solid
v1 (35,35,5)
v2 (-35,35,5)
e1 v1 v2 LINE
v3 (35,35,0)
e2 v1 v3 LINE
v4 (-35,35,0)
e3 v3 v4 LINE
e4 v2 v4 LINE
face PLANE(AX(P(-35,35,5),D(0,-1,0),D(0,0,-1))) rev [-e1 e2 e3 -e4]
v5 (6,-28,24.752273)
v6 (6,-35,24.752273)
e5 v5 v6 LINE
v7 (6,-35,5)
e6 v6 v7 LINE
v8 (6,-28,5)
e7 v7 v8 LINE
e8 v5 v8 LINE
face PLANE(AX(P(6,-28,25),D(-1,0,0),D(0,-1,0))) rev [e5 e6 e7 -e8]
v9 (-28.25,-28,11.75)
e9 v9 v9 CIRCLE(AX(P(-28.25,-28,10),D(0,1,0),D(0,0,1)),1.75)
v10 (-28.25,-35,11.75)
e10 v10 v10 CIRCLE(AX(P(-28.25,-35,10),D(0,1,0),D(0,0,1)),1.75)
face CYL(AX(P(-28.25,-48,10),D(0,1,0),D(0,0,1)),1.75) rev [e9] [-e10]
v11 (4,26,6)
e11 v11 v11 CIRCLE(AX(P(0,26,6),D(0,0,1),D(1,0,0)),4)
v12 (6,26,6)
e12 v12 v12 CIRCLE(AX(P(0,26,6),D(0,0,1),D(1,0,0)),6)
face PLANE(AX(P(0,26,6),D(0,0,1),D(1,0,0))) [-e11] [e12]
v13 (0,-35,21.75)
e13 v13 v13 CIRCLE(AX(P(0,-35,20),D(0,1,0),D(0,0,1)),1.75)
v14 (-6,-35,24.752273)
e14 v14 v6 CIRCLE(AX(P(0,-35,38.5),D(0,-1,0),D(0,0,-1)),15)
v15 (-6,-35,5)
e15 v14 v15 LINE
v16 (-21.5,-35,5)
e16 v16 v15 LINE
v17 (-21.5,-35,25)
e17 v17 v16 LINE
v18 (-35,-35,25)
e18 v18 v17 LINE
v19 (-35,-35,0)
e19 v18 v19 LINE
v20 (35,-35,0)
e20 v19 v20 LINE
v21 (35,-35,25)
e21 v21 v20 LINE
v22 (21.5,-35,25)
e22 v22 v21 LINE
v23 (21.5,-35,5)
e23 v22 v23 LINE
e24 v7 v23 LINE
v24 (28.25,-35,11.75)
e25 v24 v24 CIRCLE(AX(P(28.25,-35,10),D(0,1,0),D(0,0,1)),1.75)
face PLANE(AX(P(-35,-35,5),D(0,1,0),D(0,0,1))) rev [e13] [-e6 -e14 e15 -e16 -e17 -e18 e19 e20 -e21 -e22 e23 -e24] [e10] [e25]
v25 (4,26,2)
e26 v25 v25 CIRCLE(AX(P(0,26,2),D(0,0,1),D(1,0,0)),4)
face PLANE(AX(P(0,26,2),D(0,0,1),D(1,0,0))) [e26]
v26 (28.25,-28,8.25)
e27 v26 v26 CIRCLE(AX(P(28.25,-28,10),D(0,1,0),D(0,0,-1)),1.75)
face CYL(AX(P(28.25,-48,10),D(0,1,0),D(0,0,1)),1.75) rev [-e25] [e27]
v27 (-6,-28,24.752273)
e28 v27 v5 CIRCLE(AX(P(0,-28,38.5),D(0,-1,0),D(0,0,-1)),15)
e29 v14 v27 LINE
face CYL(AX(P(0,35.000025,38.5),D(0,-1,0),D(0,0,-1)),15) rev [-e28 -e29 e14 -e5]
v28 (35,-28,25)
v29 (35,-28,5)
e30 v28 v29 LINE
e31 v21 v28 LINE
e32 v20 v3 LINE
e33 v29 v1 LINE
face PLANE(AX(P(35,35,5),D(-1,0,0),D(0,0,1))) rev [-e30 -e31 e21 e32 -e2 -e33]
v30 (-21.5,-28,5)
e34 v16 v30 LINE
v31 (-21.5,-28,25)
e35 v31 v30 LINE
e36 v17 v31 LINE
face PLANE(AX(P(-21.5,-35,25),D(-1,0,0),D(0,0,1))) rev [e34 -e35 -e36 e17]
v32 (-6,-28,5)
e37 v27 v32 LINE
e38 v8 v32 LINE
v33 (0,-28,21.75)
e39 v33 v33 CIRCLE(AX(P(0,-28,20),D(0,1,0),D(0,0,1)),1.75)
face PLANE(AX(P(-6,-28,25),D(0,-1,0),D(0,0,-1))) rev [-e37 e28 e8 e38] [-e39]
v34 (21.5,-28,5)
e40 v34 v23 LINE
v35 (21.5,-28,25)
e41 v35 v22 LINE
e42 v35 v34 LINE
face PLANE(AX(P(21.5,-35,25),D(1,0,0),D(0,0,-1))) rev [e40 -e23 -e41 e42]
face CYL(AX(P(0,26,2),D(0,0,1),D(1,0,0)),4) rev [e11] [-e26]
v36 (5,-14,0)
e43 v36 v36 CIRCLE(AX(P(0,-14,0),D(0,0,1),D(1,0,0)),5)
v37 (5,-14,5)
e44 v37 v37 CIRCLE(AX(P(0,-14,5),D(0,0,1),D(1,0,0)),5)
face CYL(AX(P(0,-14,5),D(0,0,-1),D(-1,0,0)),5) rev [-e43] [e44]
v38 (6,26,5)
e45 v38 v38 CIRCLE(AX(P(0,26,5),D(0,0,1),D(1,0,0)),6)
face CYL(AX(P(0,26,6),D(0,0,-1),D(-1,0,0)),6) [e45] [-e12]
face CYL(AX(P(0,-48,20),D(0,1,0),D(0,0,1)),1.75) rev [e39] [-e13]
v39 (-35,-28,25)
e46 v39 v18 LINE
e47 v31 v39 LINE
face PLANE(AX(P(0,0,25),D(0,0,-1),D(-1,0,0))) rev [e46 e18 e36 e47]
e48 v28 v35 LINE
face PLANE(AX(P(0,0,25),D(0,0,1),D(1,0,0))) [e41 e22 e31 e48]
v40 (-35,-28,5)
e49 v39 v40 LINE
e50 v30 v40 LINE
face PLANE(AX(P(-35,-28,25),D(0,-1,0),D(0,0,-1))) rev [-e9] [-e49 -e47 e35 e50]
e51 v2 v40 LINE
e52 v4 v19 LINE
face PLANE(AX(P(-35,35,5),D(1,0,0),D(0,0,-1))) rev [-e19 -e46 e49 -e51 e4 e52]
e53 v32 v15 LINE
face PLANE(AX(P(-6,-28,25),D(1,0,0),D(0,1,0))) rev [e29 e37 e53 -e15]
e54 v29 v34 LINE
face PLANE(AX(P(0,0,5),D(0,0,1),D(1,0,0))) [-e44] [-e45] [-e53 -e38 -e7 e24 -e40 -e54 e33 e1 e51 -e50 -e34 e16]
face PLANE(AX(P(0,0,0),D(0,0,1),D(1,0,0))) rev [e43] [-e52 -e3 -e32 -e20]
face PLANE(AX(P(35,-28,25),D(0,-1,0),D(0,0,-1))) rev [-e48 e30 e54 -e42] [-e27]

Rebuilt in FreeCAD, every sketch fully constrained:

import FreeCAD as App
import Part
import Sketcher

V = App.Vector


def add_polygon(sketch, points):
    """Adds a closed chain of lines whose ends are joined by coincident constraints."""
    first, n = sketch.GeometryCount, len(points)
    for a, b in zip(points, points[1:] + points[:1]):
        sketch.addGeometry(Part.LineSegment(App.Vector(*a, 0), App.Vector(*b, 0)), False)
    for i in range(n):
        sketch.addConstraint(Sketcher.Constraint("Coincident", first + i, 2, first + (i + 1) % n, 1))

doc = App.newDocument("Part")
body = doc.addObject("PartDesign::Body", "Body")

# Sketch on XY plane
sketch1 = body.newObject("Sketcher::SketchObject", "Sketch")
sketch1.AttachmentSupport = (doc.getObject("XY_Plane"), [""])
sketch1.MapMode = "FlatFace"
add_polygon(sketch1, [(-35, 35), (-35, -35), (35, -35), (35, 35)])  # lines 0-3
sketch1.addGeometry(Part.Circle(V(0, -14, 0), V(0, 0, 1), 5), False)  # 4
sketch1.addConstraint(Sketcher.Constraint("Vertical", 0))
sketch1.addConstraint(Sketcher.Constraint("Horizontal", 1))
sketch1.addConstraint(Sketcher.Constraint("Vertical", 2))
sketch1.addConstraint(Sketcher.Constraint("Horizontal", 3))
sketch1.addConstraint(Sketcher.Constraint("Symmetric", 0, 2, 2, 2, -1, 1))
sketch1.addConstraint(Sketcher.Constraint("PointOnObject", 4, 3, -2))
sketch1.addConstraint(Sketcher.Constraint("Equal", 3, 0))
sketch1.addConstraint(Sketcher.Constraint("Diameter", 4, 10.0))
sketch1.addConstraint(Sketcher.Constraint("DistanceX", 1, 1, 1, 2, 70.0))
sketch1.addConstraint(Sketcher.Constraint("DistanceY", 4, 3, -1, 1, 14.0))
pad1 = body.newObject("PartDesign::Pad", "Pad")
pad1.Profile = sketch1
pad1.Length = 5

# Sketch on XY plane
sketch2 = body.newObject("Sketcher::SketchObject", "Sketch001")
sketch2.AttachmentSupport = (doc.getObject("XY_Plane"), [""])
sketch2.MapMode = "FlatFace"
sketch2.AttachmentOffset = App.Placement(V(0, 0, 5), App.Rotation())
add_polygon(sketch2, [(-35, -28), (-35, -35), (-22, -35), (-22, -28)])  # lines 0-3
add_polygon(sketch2, [(22, -28), (22, -35), (35, -35), (35, -28)])  # lines 4-7
add_polygon(sketch2, [(-6, -28), (-6, -35), (6, -35), (6, -28)])  # lines 8-11
sketch2.addConstraint(Sketcher.Constraint("Vertical", 0))
sketch2.addConstraint(Sketcher.Constraint("Horizontal", 1))
sketch2.addConstraint(Sketcher.Constraint("Vertical", 2))
sketch2.addConstraint(Sketcher.Constraint("Horizontal", 3))
sketch2.addConstraint(Sketcher.Constraint("Vertical", 4))
sketch2.addConstraint(Sketcher.Constraint("Horizontal", 5))
sketch2.addConstraint(Sketcher.Constraint("Vertical", 6))
sketch2.addConstraint(Sketcher.Constraint("Horizontal", 7))
sketch2.addConstraint(Sketcher.Constraint("Vertical", 8))
sketch2.addConstraint(Sketcher.Constraint("Horizontal", 9))
sketch2.addConstraint(Sketcher.Constraint("Vertical", 10))
sketch2.addConstraint(Sketcher.Constraint("Horizontal", 11))
sketch2.addConstraint(Sketcher.Constraint("Symmetric", 1, 2, 4, 2, -2))
sketch2.addConstraint(Sketcher.Constraint("Symmetric", 3, 2, 6, 2, -2))
sketch2.addConstraint(Sketcher.Constraint("Horizontal", 5, 2, 8, 2))
sketch2.addConstraint(Sketcher.Constraint("Horizontal", 7, 2, 10, 2))
sketch2.addConstraint(Sketcher.Constraint("DistanceX", 9, 1, 9, 2, 12.0))
sketch2.addConstraint(Sketcher.Constraint("DistanceY", 0, 2, 0, 1, 7.0))
sketch2.addConstraint(Sketcher.Constraint("DistanceX", 1, 1, 1, 2, 13.5))
sketch2.addConstraint(Sketcher.Constraint("DistanceX", 0, 2, -1, 1, 35.0))
sketch2.addConstraint(Sketcher.Constraint("DistanceY", 0, 2, -1, 1, 35.0))
sketch2.addConstraint(Sketcher.Constraint("DistanceX", 8, 2, -1, 1, 6.0))
pad2 = body.newObject("PartDesign::Pad", "Pad001")
pad2.Profile = sketch2
pad2.Length = 20

# Sketch on XZ plane
sketch3 = body.newObject("Sketcher::SketchObject", "Sketch002")
sketch3.AttachmentSupport = (doc.getObject("XZ_Plane"), [""])
sketch3.MapMode = "FlatFace"
sketch3.AttachmentOffset = App.Placement(V(0, 0, 28), App.Rotation())
sketch3.addGeometry(Part.Circle(V(-28.2, 10, 0), V(0, 0, 1), 1.8), False)
sketch3.addGeometry(Part.Circle(V(28.2, 10, 0), V(0, 0, 1), 1.8), False)
sketch3.addGeometry(Part.Circle(V(0, 20, 0), V(0, 0, 1), 1.8), False)
sketch3.addConstraint(Sketcher.Constraint("Equal", 0, 1))
sketch3.addConstraint(Sketcher.Constraint("Equal", 1, 2))
sketch3.addConstraint(Sketcher.Constraint("Symmetric", 0, 3, 1, 3, -2))
sketch3.addConstraint(Sketcher.Constraint("PointOnObject", 2, 3, -2))
sketch3.addConstraint(Sketcher.Constraint("Diameter", 0, 3.5))
sketch3.addConstraint(Sketcher.Constraint("DistanceY", -1, 1, 0, 3, 10.0))
sketch3.addConstraint(Sketcher.Constraint("DistanceY", -1, 1, 2, 3, 20.0))
sketch3.addConstraint(Sketcher.Constraint("DistanceX", 0, 3, 1, 3, 56.5))
pocket1 = body.newObject("PartDesign::Pocket", "Pocket")
pocket1.Profile = sketch3
pocket1.Length = 20
pocket1.Reversed = True

# Sketch on XY plane
sketch4 = body.newObject("Sketcher::SketchObject", "Sketch003")
sketch4.AttachmentSupport = (doc.getObject("XY_Plane"), [""])
sketch4.MapMode = "FlatFace"
sketch4.AttachmentOffset = App.Placement(V(0, 0, 5), App.Rotation())
sketch4.addGeometry(Part.Circle(V(0, 26, 0), V(0, 0, 1), 4), False)
sketch4.addConstraint(Sketcher.Constraint("PointOnObject", 0, 3, -2))
sketch4.addConstraint(Sketcher.Constraint("Diameter", 0, 8.0))
sketch4.addConstraint(Sketcher.Constraint("DistanceY", -1, 1, 0, 3, 26.0))
pocket2 = body.newObject("PartDesign::Pocket", "Pocket001")
pocket2.Profile = sketch4
pocket2.Length = 3

# Sketch on XY plane
sketch5 = body.newObject("Sketcher::SketchObject", "Sketch004")
sketch5.AttachmentSupport = (doc.getObject("XY_Plane"), [""])
sketch5.MapMode = "FlatFace"
sketch5.AttachmentOffset = App.Placement(V(0, 0, 6), App.Rotation())
sketch5.addGeometry(Part.Circle(V(0, 26, 0), V(0, 0, 1), 6), False)
sketch5.addGeometry(Part.Circle(V(0, 26, 0), V(0, 0, 1), 4), False)
sketch5.addConstraint(Sketcher.Constraint("Coincident", 1, 3, 0, 3))
sketch5.addConstraint(Sketcher.Constraint("PointOnObject", 0, 3, -2))
sketch5.addConstraint(Sketcher.Constraint("Diameter", 0, 12.0))
sketch5.addConstraint(Sketcher.Constraint("Diameter", 1, 8.0))
sketch5.addConstraint(Sketcher.Constraint("DistanceY", -1, 1, 0, 3, 26.0))
pad3 = body.newObject("PartDesign::Pad", "Pad002")
pad3.Profile = sketch5
pad3.Length = 1
pad3.Reversed = True

# Sketch on XZ plane
sketch6 = body.newObject("Sketcher::SketchObject", "Sketch005")
sketch6.AttachmentSupport = (doc.getObject("XZ_Plane"), [""])
sketch6.MapMode = "FlatFace"
sketch6.AttachmentOffset = App.Placement(V(0, 0, 35), App.Rotation())
sketch6.addGeometry(Part.Circle(V(0, 38, 0), V(0, 0, 1), 15), False)
sketch6.addConstraint(Sketcher.Constraint("PointOnObject", 0, 3, -2))
sketch6.addConstraint(Sketcher.Constraint("Diameter", 0, 30.0))
sketch6.addConstraint(Sketcher.Constraint("DistanceY", -1, 1, 0, 3, 38.5))
pocket3 = body.newObject("PartDesign::Pocket", "Pocket002")
pocket3.Profile = sketch6
pocket3.Type = "ThroughAll"

doc.recompute()
